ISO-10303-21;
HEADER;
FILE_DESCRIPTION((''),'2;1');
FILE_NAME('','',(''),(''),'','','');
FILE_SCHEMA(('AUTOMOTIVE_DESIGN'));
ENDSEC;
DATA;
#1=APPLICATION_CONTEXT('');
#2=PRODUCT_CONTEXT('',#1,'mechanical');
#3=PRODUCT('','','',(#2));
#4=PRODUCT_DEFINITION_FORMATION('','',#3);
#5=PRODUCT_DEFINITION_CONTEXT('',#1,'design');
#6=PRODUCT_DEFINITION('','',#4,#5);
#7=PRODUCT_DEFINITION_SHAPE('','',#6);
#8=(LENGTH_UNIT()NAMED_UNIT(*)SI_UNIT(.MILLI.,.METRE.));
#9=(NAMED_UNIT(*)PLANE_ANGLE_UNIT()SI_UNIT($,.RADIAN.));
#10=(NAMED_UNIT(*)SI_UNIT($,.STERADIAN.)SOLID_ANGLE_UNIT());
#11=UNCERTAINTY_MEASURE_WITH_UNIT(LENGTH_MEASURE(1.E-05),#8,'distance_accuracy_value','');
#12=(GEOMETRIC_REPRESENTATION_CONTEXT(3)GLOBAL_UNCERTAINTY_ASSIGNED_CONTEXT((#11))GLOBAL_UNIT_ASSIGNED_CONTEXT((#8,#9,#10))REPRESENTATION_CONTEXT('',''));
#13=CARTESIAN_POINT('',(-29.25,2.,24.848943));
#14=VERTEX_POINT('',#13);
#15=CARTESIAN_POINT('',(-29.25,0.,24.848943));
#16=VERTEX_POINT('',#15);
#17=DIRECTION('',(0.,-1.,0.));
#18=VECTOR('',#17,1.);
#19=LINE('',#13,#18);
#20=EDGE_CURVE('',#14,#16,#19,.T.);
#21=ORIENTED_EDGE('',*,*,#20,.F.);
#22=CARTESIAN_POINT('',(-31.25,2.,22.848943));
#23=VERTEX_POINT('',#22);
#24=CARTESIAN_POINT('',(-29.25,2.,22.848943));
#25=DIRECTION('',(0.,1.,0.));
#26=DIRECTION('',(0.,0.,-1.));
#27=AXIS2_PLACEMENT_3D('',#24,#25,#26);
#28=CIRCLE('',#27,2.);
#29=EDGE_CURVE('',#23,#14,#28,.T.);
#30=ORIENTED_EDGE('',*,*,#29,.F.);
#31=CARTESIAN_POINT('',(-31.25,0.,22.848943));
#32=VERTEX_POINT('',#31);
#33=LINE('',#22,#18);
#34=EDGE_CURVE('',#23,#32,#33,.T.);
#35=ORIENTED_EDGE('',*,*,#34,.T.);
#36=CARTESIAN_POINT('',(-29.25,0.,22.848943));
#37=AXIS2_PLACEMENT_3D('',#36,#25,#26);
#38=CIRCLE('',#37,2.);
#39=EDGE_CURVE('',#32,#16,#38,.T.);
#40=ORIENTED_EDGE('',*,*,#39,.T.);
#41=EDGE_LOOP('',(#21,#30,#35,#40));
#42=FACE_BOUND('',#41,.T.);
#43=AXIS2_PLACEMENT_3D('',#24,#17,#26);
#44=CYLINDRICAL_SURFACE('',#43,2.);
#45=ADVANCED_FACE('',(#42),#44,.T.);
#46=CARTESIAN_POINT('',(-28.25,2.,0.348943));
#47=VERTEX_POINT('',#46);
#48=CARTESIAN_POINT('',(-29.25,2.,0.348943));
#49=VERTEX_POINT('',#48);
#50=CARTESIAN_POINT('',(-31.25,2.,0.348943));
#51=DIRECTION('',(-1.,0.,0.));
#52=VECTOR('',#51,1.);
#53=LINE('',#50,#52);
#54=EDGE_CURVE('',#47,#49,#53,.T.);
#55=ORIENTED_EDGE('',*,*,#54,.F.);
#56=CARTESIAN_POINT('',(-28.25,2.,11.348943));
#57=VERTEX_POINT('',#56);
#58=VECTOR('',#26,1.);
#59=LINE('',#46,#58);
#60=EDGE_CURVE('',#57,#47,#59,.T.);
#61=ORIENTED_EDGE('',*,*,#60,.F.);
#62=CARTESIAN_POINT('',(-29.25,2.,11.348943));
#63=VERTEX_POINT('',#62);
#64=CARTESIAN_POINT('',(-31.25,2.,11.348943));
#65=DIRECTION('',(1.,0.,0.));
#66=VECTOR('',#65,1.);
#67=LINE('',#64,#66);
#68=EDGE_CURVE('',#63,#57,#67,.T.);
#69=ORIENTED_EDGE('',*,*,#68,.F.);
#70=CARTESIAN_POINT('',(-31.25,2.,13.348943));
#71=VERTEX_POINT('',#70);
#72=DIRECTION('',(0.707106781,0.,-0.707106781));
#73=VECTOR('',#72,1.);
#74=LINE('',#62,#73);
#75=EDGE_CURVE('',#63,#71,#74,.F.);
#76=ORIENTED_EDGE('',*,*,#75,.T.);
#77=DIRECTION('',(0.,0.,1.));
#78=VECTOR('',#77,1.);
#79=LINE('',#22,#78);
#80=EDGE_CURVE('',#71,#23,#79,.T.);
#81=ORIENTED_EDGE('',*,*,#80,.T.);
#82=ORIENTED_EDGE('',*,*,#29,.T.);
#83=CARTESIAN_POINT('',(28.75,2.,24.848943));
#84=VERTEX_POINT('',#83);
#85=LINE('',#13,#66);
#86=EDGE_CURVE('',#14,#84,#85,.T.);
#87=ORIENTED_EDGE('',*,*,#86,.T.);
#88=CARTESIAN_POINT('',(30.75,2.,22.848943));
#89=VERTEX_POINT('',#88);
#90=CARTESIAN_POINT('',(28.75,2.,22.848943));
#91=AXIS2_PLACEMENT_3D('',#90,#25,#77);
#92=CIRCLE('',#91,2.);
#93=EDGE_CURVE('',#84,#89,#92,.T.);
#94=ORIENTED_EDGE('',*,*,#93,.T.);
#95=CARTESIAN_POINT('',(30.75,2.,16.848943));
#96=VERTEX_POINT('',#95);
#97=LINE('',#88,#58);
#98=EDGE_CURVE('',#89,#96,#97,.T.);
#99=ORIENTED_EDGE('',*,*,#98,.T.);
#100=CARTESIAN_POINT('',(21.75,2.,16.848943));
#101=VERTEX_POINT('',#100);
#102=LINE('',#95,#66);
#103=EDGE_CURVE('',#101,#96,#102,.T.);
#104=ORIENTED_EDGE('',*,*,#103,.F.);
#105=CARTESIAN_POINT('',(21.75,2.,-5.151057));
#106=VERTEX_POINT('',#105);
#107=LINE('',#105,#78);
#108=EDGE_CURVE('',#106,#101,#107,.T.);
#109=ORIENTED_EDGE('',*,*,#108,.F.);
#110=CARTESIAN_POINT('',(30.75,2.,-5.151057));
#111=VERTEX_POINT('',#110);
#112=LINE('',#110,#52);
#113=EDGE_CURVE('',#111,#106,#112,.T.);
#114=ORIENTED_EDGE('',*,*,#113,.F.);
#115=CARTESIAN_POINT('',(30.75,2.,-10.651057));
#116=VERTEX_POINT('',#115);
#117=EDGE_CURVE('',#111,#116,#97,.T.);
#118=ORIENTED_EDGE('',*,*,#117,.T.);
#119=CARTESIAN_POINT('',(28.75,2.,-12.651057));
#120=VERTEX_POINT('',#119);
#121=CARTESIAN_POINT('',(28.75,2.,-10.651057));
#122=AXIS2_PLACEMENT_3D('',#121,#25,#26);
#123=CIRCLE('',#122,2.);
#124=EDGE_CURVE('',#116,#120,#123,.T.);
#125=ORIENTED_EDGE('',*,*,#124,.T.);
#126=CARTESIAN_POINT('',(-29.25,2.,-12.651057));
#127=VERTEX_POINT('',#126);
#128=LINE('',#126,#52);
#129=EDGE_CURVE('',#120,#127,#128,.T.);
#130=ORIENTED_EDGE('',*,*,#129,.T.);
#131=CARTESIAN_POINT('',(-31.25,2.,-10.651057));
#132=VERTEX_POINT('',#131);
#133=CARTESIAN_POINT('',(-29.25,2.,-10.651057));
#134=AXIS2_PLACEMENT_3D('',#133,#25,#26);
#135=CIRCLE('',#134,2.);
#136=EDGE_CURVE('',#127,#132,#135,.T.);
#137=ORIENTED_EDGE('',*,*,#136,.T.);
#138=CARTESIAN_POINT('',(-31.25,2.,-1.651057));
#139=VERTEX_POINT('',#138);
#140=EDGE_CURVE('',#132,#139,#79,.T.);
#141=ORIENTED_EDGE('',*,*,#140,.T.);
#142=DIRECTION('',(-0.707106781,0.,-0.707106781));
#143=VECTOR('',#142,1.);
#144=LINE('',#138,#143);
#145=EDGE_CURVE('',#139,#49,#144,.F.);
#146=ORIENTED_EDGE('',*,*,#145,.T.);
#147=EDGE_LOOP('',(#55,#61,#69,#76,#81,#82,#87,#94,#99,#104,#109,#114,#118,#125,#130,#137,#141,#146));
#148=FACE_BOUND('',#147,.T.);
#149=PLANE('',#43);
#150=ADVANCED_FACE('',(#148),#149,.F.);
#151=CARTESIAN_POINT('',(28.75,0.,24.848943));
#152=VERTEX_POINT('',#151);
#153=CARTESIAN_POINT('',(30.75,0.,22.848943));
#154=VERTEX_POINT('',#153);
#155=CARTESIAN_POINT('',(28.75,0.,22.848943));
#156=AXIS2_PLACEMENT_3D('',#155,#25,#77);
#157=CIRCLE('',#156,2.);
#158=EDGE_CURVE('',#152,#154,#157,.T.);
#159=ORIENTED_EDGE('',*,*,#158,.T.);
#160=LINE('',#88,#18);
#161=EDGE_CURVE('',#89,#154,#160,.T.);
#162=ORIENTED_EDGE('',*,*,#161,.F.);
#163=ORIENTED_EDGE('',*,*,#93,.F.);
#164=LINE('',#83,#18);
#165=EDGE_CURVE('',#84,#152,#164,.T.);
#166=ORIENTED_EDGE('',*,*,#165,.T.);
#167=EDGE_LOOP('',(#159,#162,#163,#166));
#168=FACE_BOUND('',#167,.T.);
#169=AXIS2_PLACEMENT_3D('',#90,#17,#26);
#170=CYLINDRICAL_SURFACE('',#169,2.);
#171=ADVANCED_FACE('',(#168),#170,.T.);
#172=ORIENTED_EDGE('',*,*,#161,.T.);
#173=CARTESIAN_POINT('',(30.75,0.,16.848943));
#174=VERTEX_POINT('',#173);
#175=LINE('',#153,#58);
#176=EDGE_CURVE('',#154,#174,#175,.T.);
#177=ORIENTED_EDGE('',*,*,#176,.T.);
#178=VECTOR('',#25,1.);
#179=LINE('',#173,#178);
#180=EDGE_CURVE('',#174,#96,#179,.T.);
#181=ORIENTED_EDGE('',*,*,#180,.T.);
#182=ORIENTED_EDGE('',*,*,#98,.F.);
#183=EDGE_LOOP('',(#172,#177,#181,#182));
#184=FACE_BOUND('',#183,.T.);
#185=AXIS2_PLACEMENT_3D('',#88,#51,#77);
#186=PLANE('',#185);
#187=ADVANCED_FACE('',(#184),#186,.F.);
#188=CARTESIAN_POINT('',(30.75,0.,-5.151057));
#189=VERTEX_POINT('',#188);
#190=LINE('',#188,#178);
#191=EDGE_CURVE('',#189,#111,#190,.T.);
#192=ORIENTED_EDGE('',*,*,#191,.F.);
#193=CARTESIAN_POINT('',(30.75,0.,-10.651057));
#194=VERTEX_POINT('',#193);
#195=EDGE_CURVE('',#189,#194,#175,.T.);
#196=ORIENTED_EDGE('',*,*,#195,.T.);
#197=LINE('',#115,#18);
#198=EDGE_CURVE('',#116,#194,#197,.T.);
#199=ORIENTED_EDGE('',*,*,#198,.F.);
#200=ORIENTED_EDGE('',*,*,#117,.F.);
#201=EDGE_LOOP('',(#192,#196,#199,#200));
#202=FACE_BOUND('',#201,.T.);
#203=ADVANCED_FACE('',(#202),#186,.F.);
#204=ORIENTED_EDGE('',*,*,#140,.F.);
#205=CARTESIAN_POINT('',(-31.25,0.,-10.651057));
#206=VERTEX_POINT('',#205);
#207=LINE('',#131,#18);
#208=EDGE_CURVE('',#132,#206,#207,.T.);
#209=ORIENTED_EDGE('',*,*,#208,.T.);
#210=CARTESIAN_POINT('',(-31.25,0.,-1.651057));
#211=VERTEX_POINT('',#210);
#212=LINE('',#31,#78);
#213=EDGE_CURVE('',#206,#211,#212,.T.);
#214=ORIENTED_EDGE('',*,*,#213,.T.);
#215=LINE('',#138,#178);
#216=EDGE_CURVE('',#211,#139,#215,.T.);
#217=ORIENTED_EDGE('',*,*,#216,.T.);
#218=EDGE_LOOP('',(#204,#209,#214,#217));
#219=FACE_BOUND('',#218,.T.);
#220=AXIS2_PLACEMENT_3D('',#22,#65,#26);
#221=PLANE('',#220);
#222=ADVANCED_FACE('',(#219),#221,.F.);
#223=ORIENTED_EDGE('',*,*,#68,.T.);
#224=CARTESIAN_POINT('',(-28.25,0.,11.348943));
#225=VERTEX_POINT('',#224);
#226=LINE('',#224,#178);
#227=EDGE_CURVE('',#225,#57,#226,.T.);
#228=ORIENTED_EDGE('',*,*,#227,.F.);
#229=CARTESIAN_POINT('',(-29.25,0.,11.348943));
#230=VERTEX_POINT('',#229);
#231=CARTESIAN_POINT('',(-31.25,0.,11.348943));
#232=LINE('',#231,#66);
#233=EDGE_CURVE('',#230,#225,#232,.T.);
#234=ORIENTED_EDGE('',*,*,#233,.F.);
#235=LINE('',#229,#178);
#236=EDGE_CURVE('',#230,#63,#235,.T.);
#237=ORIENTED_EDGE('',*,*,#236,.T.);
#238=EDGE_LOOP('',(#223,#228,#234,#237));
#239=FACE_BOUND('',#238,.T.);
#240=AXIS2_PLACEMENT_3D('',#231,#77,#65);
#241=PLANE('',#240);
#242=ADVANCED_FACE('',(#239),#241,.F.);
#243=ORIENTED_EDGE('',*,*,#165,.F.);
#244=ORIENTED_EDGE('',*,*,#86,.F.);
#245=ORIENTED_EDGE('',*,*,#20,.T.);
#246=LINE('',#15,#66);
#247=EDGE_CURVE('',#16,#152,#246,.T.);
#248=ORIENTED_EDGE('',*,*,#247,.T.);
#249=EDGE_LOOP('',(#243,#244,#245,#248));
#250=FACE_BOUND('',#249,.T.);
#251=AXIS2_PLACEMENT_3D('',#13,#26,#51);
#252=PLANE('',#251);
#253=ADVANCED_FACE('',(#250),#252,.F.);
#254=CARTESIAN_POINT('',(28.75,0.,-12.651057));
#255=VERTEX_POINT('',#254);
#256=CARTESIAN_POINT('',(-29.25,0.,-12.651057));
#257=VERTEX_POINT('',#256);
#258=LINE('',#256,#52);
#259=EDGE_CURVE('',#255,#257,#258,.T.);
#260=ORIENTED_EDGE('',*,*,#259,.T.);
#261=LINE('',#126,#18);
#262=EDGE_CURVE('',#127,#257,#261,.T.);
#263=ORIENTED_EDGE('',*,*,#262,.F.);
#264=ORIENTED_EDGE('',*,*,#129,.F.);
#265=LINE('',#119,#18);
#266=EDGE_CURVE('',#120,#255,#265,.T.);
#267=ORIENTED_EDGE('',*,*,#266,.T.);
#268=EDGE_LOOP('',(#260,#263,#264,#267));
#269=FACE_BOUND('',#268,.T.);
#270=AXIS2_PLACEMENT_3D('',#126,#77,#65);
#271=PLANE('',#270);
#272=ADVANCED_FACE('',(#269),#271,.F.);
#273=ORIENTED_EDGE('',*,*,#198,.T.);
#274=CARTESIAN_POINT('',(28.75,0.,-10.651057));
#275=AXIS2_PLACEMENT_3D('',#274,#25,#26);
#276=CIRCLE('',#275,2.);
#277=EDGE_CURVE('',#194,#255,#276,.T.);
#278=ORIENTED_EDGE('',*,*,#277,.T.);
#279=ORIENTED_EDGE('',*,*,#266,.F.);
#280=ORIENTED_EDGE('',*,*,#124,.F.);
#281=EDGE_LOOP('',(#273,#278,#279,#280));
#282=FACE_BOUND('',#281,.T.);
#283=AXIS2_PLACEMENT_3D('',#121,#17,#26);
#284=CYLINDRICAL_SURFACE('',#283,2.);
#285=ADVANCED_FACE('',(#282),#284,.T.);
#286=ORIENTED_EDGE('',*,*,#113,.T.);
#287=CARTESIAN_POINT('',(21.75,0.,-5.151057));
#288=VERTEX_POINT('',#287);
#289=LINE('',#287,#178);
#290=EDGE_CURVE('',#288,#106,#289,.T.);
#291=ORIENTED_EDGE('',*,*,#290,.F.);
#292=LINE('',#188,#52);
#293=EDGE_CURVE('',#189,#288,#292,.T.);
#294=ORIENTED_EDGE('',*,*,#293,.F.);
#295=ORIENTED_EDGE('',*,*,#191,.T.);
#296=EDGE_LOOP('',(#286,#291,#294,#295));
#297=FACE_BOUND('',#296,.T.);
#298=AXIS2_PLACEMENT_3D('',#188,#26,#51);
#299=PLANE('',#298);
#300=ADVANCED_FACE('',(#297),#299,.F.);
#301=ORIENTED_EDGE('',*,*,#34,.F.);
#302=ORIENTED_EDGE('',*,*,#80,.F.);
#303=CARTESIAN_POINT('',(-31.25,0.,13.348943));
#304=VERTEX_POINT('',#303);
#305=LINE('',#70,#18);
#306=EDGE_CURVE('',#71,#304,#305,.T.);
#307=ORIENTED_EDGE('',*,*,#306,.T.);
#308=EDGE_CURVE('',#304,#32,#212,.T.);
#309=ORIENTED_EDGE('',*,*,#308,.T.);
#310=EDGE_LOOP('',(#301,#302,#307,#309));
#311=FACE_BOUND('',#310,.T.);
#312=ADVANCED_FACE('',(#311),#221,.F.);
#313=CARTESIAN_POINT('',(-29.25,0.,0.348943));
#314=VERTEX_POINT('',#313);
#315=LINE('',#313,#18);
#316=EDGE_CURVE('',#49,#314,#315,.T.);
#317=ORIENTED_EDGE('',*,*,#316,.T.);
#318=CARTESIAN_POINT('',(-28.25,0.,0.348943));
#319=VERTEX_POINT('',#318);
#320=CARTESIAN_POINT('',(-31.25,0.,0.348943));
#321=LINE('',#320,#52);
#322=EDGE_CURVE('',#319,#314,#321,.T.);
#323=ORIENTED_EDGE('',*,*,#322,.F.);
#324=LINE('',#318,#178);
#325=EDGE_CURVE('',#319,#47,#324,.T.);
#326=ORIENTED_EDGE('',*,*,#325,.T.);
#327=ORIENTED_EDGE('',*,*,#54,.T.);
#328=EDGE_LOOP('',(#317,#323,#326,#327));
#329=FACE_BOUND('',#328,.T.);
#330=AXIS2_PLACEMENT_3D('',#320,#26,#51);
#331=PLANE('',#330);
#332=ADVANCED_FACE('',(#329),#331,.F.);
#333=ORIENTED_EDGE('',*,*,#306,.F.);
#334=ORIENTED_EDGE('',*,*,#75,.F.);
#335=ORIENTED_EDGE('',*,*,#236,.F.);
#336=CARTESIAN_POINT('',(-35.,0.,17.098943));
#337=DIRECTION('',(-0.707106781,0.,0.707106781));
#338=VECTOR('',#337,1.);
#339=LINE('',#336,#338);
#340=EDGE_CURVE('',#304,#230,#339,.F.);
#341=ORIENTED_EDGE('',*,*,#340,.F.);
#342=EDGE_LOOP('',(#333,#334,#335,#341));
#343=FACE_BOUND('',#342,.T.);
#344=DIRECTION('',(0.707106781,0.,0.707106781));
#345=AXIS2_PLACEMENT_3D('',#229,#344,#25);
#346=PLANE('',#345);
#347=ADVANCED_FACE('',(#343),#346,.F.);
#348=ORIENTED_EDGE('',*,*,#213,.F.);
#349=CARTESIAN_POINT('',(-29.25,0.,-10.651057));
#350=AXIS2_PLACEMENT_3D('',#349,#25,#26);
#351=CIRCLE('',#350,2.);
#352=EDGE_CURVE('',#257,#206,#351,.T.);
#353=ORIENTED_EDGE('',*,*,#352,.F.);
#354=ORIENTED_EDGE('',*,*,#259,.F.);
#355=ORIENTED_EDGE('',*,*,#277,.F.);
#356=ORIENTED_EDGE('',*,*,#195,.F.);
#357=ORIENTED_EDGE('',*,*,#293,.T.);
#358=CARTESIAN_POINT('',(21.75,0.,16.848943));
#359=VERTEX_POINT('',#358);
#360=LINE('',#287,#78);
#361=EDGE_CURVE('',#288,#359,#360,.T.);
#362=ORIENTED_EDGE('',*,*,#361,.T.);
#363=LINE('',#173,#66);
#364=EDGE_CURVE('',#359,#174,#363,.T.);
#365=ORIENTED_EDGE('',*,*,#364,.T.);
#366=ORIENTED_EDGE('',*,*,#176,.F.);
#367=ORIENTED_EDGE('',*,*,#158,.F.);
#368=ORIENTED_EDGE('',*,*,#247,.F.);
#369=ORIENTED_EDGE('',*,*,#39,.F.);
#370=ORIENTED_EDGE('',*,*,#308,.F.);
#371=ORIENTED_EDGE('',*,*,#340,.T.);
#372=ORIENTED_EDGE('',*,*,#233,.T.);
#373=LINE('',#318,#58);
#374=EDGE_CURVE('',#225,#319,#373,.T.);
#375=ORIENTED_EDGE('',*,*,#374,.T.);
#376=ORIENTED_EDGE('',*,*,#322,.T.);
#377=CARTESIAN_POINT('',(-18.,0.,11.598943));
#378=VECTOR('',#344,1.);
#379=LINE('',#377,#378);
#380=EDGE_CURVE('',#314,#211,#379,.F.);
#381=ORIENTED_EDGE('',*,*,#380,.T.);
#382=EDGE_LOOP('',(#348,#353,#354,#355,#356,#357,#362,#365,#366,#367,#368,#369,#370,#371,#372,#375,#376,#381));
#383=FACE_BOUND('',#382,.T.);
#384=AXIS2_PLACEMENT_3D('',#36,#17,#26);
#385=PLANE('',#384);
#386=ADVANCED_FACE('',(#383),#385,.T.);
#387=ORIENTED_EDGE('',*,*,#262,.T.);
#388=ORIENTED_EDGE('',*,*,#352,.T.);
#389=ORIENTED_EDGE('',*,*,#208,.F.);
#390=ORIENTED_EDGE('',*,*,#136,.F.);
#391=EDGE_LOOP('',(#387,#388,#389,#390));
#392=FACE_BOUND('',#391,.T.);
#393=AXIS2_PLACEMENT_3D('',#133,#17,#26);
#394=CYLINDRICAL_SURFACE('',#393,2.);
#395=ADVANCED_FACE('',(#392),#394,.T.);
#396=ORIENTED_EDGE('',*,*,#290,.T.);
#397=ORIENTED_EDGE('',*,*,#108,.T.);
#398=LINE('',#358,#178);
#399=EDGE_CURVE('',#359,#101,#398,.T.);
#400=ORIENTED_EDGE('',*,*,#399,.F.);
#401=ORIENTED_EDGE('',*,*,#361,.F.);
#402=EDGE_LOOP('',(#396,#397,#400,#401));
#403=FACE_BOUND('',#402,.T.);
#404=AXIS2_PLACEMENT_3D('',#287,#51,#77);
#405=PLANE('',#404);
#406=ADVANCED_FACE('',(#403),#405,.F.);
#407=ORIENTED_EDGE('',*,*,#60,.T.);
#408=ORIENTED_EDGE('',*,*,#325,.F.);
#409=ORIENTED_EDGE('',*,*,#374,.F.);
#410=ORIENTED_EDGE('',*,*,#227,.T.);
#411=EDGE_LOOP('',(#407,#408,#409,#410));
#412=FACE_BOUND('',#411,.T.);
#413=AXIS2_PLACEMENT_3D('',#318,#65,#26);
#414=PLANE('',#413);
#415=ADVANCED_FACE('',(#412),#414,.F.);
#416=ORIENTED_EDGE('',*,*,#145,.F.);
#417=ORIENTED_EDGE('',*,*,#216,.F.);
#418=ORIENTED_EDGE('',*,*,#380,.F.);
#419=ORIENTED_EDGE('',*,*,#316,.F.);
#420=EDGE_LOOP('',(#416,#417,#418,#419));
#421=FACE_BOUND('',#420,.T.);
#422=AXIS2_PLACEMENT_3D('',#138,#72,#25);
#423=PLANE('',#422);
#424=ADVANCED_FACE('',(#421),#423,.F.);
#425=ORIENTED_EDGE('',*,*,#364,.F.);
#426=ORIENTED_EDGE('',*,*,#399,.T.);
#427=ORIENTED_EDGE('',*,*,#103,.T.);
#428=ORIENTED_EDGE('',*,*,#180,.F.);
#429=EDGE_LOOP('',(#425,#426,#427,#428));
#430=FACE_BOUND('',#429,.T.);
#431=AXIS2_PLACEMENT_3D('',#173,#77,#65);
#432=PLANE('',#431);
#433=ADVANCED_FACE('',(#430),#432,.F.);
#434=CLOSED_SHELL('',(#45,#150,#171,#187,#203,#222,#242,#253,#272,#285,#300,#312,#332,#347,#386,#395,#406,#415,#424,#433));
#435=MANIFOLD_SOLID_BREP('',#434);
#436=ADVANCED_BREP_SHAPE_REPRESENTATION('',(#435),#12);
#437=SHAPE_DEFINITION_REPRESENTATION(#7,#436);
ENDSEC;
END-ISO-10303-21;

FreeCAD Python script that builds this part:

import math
import FreeCAD as App
import Part
import Sketcher
from FreeCAD import Vector
Q = App.Units.Quantity


def edges_at(feature, points):
    """Names of the edges that pass closest to the given points."""
    edges = feature.Shape.Edges
    near = lambda p: min(range(len(edges)), key=lambda i: edges[i].distToShape(Part.Vertex(*p))[0])
    return sorted({f"Edge{near(p) + 1}" for p in points})

doc = App.newDocument("Part")
params = doc.addObject("Spreadsheet::Sheet", "Params")
for row, (alias, value) in enumerate([
    ("sketch1_radius", "2 mm"),
    ("sketch1_width", "58 mm"),
    ("sketch1_height", "33.5 mm"),
    ("pad1_length", "2 mm"),
    ("sketch2_width", "3 mm"),
    ("sketch2_height", "11 mm"),
    ("pocket1_length", "2 mm"),
    ("chamfer_size", "2 mm"),
    ("sketch3_width", "9 mm"),
    ("sketch3_height", "22 mm"),
    ("pocket2_length", "2 mm"),
], start=1):
    params.set(f"A{row}", alias)
    params.set(f"B{row}", "=" + value)
    params.setAlias(f"B{row}", alias)

body = doc.addObject("PartDesign::Body", "Body")

sketch1 = body.newObject("Sketcher::SketchObject", "Sketch")
sketch1.AttachmentSupport = (doc.getObject("XZ_Plane"), [""])
sketch1.MapMode = "FlatFace"
sketch1.addGeometry([
    Part.LineSegment(Vector(-29.2, 24.8, 0), Vector(28.8, 24.8, 0)),
    Part.ArcOfCircle(Part.Circle(Vector(28.8, 22.8, 0), Vector(0, 0, 1), 2), math.radians(0), math.radians(90)),
    Part.LineSegment(Vector(30.8, 22.8, 0), Vector(30.8, -10.7, 0)),
    Part.ArcOfCircle(Part.Circle(Vector(28.7, -10.7, 0), Vector(0, 0, 1), 2), math.radians(-90), math.radians(0)),
    Part.LineSegment(Vector(28.8, -12.7, 0), Vector(-29.2, -12.7, 0)),
    Part.ArcOfCircle(Part.Circle(Vector(-29.2, -10.7, 0), Vector(0, 0, 1), 2), math.radians(-180), math.radians(-90)),
    Part.LineSegment(Vector(-31.2, -10.7, 0), Vector(-31.2, 22.8, 0)),
    Part.ArcOfCircle(Part.Circle(Vector(-29.2, 22.8, 0), Vector(0, 0, 1), 2), math.radians(90), math.radians(180)),
], False)
sketch1.addConstraint([
    Sketcher.Constraint("Tangent", 0, 2, 1, 2),
    Sketcher.Constraint("Tangent", 1, 1, 2, 1),
    Sketcher.Constraint("Tangent", 2, 2, 3, 2),
    Sketcher.Constraint("Tangent", 3, 1, 4, 1),
    Sketcher.Constraint("Tangent", 4, 2, 5, 2),
    Sketcher.Constraint("Tangent", 5, 1, 6, 1),
    Sketcher.Constraint("Tangent", 6, 2, 7, 2),
    Sketcher.Constraint("Tangent", 7, 1, 0, 1),
    Sketcher.Constraint("Horizontal", 0),
    Sketcher.Constraint("Vertical", 2),
    Sketcher.Constraint("Horizontal", 4),
    Sketcher.Constraint("Vertical", 6),
    Sketcher.Constraint("Equal", 1, 3),
    Sketcher.Constraint("Equal", 3, 5),
    Sketcher.Constraint("Equal", 5, 7),
    Sketcher.Constraint("Radius", 1, Q("2 mm")),
    Sketcher.Constraint("DistanceX", 0, 1, 0, 2, Q("58 mm")),
    Sketcher.Constraint("DistanceY", 2, 2, 2, 1, Q("33.5 mm")),
    Sketcher.Constraint("DistanceX", -1, 1, 1, 3, Q("28.75 mm")),
    Sketcher.Constraint("DistanceY", -1, 1, 1, 3, Q("22.848943 mm")),
])
sketch1.setExpression("Constraints[15]", "Params.sketch1_radius")
sketch1.setExpression("Constraints[16]", "Params.sketch1_width")
sketch1.setExpression("Constraints[17]", "Params.sketch1_height")
pad1 = body.newObject("PartDesign::Pad", "Pad")
pad1.Profile = sketch1
pad1.setExpression("Length", "Params.pad1_length")
pad1.Reversed = True

sketch2 = body.newObject("Sketcher::SketchObject", "Sketch001")
sketch2.AttachmentSupport = (doc.getObject("XZ_Plane"), [""])
sketch2.MapMode = "FlatFace"
sketch2.AttachmentOffset = App.Placement(Vector(0, 0, -2), App.Rotation())
sketch2.addGeometry([
    Part.LineSegment(Vector(-31.2, 0.3, 0), Vector(-31.2, 11.3, 0)),
    Part.LineSegment(Vector(-31.2, 11.3, 0), Vector(-28.2, 11.3, 0)),
    Part.LineSegment(Vector(-28.2, 11.3, 0), Vector(-28.2, 0.3, 0)),
    Part.LineSegment(Vector(-28.2, 0.3, 0), Vector(-31.2, 0.3, 0)),
], False)
sketch2.addConstraint([
    Sketcher.Constraint("Coincident", 0, 2, 1, 1),
    Sketcher.Constraint("Coincident", 1, 2, 2, 1),
    Sketcher.Constraint("Coincident", 2, 2, 3, 1),
    Sketcher.Constraint("Coincident", 3, 2, 0, 1),
    Sketcher.Constraint("Vertical", 0),
    Sketcher.Constraint("Horizontal", 1),
    Sketcher.Constraint("Vertical", 2),
    Sketcher.Constraint("Horizontal", 3),
    Sketcher.Constraint("DistanceX", 1, 1, 1, 2, Q("3 mm")),
    Sketcher.Constraint("DistanceY", 0, 1, 0, 2, Q("11 mm")),
    Sketcher.Constraint("DistanceX", 0, 2, -1, 1, Q("31.25 mm")),
    Sketcher.Constraint("DistanceY", -1, 1, 0, 2, Q("11.348943 mm")),
])
sketch2.setExpression("Constraints[8]", "Params.sketch2_width")
sketch2.setExpression("Constraints[9]", "Params.sketch2_height")
pocket1 = body.newObject("PartDesign::Pocket", "Pocket")
pocket1.Profile = sketch2
pocket1.setExpression("Length", "Params.pocket1_length")
pocket1.Reversed = True
doc.recompute()

chamfer = body.newObject("PartDesign::Chamfer", "Chamfer")
chamfer.Base = (pocket1, edges_at(pocket1, [(-31.25, 1, 11.349), (-31.25, 1, 0.349)]))
chamfer.setExpression("Size", "Params.chamfer_size")

sketch3 = body.newObject("Sketcher::SketchObject", "Sketch002")
sketch3.AttachmentSupport = (doc.getObject("XZ_Plane"), [""])
sketch3.MapMode = "FlatFace"
sketch3.AttachmentOffset = App.Placement(Vector(0, 0, -2), App.Rotation())
sketch3.addGeometry([
    Part.LineSegment(Vector(22, -5, 0), Vector(22, 17, 0)),
    Part.LineSegment(Vector(22, 17, 0), Vector(31, 17, 0)),
    Part.LineSegment(Vector(31, 17, 0), Vector(31, -5, 0)),
    Part.LineSegment(Vector(31, -5, 0), Vector(22, -5, 0)),
], False)
sketch3.addConstraint([
    Sketcher.Constraint("Coincident", 0, 2, 1, 1),
    Sketcher.Constraint("Coincident", 1, 2, 2, 1),
    Sketcher.Constraint("Coincident", 2, 2, 3, 1),
    Sketcher.Constraint("Coincident", 3, 2, 0, 1),
    Sketcher.Constraint("Vertical", 0),
    Sketcher.Constraint("Horizontal", 1),
    Sketcher.Constraint("Vertical", 2),
    Sketcher.Constraint("Horizontal", 3),
    Sketcher.Constraint("DistanceX", 1, 1, 1, 2, Q("9 mm")),
    Sketcher.Constraint("DistanceY", 0, 1, 0, 2, Q("22 mm")),
    Sketcher.Constraint("DistanceX", -1, 1, 0, 2, Q("21.75 mm")),
    Sketcher.Constraint("DistanceY", -1, 1, 0, 2, Q("16.848943 mm")),
])
sketch3.setExpression("Constraints[8]", "Params.sketch3_width")
sketch3.setExpression("Constraints[9]", "Params.sketch3_height")
pocket2 = body.newObject("PartDesign::Pocket", "Pocket001")
pocket2.Profile = sketch3
pocket2.setExpression("Length", "Params.pocket2_length")
pocket2.Reversed = True

doc.recompute()
